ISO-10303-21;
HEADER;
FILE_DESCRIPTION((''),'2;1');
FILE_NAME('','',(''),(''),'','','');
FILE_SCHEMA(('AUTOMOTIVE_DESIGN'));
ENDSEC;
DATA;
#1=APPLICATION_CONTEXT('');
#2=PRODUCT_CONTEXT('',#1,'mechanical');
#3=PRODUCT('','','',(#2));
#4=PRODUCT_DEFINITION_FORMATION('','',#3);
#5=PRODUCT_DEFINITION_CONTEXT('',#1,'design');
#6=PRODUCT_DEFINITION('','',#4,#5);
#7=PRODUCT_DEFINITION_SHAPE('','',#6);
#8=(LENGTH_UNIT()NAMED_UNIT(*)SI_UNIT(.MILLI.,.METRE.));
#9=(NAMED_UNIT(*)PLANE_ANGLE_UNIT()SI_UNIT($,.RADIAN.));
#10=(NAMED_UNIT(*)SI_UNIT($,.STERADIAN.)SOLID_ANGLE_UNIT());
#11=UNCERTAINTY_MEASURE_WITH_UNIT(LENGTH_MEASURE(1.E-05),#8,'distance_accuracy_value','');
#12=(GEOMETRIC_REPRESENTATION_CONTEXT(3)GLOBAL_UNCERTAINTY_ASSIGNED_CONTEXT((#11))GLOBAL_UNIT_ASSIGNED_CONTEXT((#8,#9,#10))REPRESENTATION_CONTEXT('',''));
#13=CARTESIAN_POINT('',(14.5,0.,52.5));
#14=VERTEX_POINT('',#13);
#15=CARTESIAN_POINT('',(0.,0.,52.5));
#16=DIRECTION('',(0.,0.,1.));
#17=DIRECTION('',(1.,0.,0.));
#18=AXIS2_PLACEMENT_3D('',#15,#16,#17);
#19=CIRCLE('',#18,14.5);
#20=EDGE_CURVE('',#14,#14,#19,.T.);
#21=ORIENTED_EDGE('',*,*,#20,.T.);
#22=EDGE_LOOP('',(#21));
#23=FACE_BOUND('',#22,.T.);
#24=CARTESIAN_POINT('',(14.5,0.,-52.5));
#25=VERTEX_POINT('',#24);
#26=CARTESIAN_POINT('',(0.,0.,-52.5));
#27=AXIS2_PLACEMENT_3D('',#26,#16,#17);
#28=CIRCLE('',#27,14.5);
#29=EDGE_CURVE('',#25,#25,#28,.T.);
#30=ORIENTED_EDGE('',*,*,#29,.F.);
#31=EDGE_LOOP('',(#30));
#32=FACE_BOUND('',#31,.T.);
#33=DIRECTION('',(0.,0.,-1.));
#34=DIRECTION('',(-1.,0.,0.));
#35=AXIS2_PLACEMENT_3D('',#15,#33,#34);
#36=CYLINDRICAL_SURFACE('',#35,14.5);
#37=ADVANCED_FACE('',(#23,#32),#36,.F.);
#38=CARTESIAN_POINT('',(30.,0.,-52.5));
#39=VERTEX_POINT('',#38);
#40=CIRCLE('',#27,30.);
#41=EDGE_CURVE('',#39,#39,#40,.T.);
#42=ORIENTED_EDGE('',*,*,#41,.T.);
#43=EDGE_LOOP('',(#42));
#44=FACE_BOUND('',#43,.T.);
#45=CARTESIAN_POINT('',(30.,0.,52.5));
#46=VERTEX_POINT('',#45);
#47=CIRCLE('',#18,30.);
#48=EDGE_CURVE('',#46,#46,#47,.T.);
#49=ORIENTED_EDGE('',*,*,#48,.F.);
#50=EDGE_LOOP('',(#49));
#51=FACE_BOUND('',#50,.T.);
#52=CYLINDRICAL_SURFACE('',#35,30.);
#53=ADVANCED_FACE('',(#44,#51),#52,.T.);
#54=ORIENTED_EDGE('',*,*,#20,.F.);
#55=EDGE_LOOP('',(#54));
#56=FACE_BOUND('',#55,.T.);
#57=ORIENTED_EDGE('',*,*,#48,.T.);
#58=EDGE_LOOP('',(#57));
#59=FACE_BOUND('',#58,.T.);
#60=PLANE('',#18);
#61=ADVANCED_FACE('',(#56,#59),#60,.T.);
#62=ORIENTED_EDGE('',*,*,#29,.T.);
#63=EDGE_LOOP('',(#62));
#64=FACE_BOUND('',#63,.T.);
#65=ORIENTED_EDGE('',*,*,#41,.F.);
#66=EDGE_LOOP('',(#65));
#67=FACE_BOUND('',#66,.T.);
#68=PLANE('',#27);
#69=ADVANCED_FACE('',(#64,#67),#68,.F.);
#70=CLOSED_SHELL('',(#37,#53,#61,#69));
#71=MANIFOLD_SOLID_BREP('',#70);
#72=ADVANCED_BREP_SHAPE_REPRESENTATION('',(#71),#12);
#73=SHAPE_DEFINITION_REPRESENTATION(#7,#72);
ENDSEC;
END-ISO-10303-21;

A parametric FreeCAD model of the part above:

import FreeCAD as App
import Part
import Sketcher

V = App.Vector
Q = App.Units.Quantity

doc = App.newDocument("Part")
params = doc.addObject("Spreadsheet::Sheet", "Params")
for row, (alias, value) in enumerate([
    ("sketch1_diameter", "60 mm"),
    ("sketch1_diameter2", "29 mm"),
    ("pad1_length", "105 mm"),
], start=1):
    params.set(f"A{row}", alias)
    params.set(f"B{row}", "=" + value)
    params.setAlias(f"B{row}", alias)

body = doc.addObject("PartDesign::Body", "Body")

# Sketch on XY plane
sketch1 = body.newObject("Sketcher::SketchObject", "Sketch")
sketch1.AttachmentSupport = (doc.getObject("XY_Plane"), [""])
sketch1.MapMode = "FlatFace"
sketch1.addGeometry(Part.Circle(V(0, 0, 0), V(0, 0, 1), 30), False)
sketch1.addGeometry(Part.Circle(V(0, 0, 0), V(0, 0, 1), 14.5), False)
sketch1.addConstraint(Sketcher.Constraint("Coincident", 0, 3, -1, 1))
sketch1.addConstraint(Sketcher.Constraint("Coincident", 1, 3, -1, 1))
sketch1.addConstraint(Sketcher.Constraint("Diameter", 0, Q("60 mm")))
sketch1.addConstraint(Sketcher.Constraint("Diameter", 1, Q("29 mm")))
sketch1.setExpression("Constraints[2]", "Params.sketch1_diameter")
sketch1.setExpression("Constraints[3]", "Params.sketch1_diameter2")
pad1 = body.newObject("PartDesign::Pad", "Pad")
pad1.Profile = sketch1
pad1.setExpression("Length", "Params.pad1_length")
pad1.Midplane = True

doc.recompute()
